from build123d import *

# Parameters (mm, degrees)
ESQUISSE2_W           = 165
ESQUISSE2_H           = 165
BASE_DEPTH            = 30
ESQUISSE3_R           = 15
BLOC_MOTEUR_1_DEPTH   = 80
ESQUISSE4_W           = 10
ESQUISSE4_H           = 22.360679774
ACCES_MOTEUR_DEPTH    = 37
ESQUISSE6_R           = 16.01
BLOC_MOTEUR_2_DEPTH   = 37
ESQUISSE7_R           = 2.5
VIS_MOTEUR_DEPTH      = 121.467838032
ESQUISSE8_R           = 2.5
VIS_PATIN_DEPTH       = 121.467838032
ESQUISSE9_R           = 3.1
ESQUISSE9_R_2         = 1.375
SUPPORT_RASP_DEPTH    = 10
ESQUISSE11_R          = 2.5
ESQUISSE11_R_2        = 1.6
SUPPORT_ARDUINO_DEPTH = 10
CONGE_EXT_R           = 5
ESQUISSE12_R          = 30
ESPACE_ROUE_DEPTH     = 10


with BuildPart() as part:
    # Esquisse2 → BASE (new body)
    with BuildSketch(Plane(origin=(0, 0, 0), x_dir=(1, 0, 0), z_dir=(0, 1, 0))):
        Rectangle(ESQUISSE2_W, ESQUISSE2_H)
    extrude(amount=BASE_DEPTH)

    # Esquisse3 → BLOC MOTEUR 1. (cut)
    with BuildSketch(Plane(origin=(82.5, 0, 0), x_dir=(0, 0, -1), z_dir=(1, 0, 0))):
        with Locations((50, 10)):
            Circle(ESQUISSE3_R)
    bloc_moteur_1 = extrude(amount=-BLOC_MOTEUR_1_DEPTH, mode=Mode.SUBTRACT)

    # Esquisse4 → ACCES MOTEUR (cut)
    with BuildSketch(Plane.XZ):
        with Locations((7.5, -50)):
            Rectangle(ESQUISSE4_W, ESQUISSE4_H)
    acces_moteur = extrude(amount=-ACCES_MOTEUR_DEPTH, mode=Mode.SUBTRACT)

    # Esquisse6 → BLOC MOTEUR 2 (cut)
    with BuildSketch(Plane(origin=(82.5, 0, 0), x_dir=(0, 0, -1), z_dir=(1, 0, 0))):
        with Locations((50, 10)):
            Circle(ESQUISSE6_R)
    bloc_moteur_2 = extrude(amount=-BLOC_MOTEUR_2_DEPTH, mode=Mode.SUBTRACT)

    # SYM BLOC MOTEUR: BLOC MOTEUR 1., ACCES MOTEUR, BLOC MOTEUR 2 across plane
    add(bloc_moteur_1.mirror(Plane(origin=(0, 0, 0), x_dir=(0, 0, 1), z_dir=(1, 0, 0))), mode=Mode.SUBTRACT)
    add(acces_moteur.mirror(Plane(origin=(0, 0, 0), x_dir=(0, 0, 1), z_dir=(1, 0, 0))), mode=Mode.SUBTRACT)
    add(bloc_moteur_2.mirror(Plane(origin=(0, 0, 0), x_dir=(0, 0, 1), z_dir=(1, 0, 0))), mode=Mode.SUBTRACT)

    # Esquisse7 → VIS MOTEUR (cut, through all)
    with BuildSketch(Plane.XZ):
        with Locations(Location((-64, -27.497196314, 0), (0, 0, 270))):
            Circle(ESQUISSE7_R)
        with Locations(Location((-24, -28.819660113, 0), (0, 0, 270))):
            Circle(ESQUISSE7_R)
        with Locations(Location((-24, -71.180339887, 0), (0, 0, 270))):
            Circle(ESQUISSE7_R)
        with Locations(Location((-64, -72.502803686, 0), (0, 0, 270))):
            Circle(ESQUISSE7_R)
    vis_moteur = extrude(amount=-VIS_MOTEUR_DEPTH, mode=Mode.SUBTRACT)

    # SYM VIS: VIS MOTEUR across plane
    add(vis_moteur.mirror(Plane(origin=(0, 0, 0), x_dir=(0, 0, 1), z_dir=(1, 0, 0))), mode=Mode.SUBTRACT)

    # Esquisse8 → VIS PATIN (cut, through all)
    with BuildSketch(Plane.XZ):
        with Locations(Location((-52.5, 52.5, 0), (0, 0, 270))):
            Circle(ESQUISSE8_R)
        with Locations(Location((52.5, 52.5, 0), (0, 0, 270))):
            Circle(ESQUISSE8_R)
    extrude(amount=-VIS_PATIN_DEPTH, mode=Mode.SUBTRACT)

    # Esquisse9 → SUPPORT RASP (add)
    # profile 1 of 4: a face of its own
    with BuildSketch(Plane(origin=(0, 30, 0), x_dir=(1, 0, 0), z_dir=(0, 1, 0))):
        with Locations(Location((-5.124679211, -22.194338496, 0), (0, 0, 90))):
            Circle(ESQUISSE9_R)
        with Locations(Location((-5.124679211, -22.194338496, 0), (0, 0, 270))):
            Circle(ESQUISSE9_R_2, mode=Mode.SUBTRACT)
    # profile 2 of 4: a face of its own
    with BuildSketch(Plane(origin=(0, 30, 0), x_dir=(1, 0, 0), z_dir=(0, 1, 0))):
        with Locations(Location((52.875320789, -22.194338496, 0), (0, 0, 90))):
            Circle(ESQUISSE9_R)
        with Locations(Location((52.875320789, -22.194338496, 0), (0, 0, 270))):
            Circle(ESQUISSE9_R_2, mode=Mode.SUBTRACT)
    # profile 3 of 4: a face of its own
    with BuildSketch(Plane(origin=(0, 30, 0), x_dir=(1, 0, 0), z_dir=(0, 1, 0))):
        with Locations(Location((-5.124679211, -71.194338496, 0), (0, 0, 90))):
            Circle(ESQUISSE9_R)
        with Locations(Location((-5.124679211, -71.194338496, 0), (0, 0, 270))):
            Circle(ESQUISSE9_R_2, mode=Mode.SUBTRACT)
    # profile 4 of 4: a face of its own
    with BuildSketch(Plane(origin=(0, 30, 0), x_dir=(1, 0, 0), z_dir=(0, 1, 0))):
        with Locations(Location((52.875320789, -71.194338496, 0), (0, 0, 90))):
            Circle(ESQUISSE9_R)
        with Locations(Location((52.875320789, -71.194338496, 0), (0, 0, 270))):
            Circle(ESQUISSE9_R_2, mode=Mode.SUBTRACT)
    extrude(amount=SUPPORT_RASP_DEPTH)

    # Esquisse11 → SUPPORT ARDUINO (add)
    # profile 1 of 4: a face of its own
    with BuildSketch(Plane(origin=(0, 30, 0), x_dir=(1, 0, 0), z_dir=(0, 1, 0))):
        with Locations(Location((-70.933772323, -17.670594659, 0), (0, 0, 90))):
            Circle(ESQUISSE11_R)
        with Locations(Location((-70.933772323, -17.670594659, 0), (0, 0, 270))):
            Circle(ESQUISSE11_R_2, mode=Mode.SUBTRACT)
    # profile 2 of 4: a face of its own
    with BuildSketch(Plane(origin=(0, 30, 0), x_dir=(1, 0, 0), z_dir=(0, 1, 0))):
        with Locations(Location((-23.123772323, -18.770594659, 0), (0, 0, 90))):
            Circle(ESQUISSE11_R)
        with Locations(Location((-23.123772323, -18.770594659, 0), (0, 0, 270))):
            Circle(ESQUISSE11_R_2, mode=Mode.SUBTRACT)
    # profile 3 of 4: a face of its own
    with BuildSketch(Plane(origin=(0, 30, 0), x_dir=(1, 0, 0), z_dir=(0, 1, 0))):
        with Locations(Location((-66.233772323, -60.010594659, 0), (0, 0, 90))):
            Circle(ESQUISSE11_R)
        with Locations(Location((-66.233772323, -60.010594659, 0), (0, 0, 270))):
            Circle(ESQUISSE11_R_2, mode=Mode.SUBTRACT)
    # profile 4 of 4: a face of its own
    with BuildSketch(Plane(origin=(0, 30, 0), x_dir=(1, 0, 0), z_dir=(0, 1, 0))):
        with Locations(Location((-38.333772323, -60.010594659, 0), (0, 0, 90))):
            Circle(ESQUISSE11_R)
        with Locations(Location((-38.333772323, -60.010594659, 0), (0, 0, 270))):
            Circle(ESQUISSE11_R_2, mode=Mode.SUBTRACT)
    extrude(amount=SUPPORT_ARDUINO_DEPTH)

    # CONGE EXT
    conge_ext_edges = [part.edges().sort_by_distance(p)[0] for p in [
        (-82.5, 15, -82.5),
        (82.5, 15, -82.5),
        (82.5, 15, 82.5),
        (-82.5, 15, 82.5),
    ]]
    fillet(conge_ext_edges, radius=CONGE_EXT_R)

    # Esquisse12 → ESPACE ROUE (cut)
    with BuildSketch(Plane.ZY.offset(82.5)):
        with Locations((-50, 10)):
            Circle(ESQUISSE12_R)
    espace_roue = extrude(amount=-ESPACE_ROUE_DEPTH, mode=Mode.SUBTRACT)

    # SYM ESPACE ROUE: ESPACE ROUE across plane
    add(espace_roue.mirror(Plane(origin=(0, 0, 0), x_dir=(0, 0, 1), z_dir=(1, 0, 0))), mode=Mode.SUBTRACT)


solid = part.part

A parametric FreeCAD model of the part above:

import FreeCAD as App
import Part
import Sketcher

V = App.Vector


def edges_at(feature, points):
    """Names of the edges that pass closest to the given points."""
    edges = feature.Shape.Edges
    near = lambda p: min(range(len(edges)), key=lambda i: edges[i].distToShape(Part.Vertex(*p))[0])
    return sorted({f"Edge{near(p) + 1}" for p in points})


def add_polygon(sketch, points):
    """Adds a closed chain of lines whose ends are joined by coincident constraints."""
    first, n = sketch.GeometryCount, len(points)
    for a, b in zip(points, points[1:] + points[:1]):
        sketch.addGeometry(Part.LineSegment(App.Vector(*a, 0), App.Vector(*b, 0)), False)
    for i in range(n):
        sketch.addConstraint(Sketcher.Constraint("Coincident", first + i, 2, first + (i + 1) % n, 1))

doc = App.newDocument("Part")
params = doc.addObject("Spreadsheet::Sheet", "Params")
for row, (alias, value) in enumerate([
    ("sketch1_width", "165 mm"),
    ("pad1_length", "30 mm"),
    ("sketch2_diameter", "30 mm"),
    ("pocket1_length", "80 mm"),
    ("sketch3_width", "10 mm"),
    ("pocket2_length", "37 mm"),
    ("sketch4_diameter", "32.02 mm"),
    ("pocket3_length", "37 mm"),
    ("sketch5_diameter", "5 mm"),
    ("sketch6_diameter", "5 mm"),
    ("sketch7_diameter", "6.2 mm"),
    ("sketch7_diameter2", "2.75 mm"),
    ("pad2_length", "10 mm"),
    ("sketch8_diameter", "5 mm"),
    ("sketch8_diameter2", "3.2 mm"),
    ("pad3_length", "10 mm"),
    ("fillet_radius", "5 mm"),
    ("sketch9_diameter", "60 mm"),
    ("pocket6_length", "10 mm"),
], start=1):
    params.set(f"A{row}", alias)
    params.set(f"B{row}", "=" + value)
    params.setAlias(f"B{row}", alias)

body = doc.addObject("PartDesign::Body", "Body")

sketch1 = body.newObject("Sketcher::SketchObject", "Sketch")
sketch1.AttachmentSupport = (doc.getObject("XZ_Plane"), [""])
sketch1.MapMode = "FlatFace"
add_polygon(sketch1, [(-82, -82), (-82, 82), (82, 82), (82, -82)])
sketch1.addConstraint([
    Sketcher.Constraint("Vertical", 0),
    Sketcher.Constraint("Horizontal", 1),
    Sketcher.Constraint("Vertical", 2),
    Sketcher.Constraint("Horizontal", 3),
    Sketcher.Constraint("Symmetric", 0, 2, 2, 2, -1, 1),
    Sketcher.Constraint("Equal", 3, 0),
    Sketcher.Constraint("DistanceX", 1, 1, 1, 2, 165.0),
])
sketch1.setExpression("Constraints[10]", "Params.sketch1_width")
pad1 = body.newObject("PartDesign::Pad", "Pad")
pad1.Profile = sketch1
pad1.setExpression("Length", "Params.pad1_length")
pad1.Reversed = True

sketch2 = body.newObject("Sketcher::SketchObject", "Sketch001")
sketch2.AttachmentSupport = (doc.getObject("YZ_Plane"), [""])
sketch2.MapMode = "FlatFace"
sketch2.AttachmentOffset = App.Placement(V(0, 0, 82.5), App.Rotation())
sketch2.addGeometry(Part.Circle(V(10, -50, 0), V(0, 0, 1), 15), False)
sketch2.addConstraint([
    Sketcher.Constraint("Diameter", 0, 30.0),
    Sketcher.Constraint("DistanceX", -1, 1, 0, 3, 10.0),
    Sketcher.Constraint("DistanceY", 0, 3, -1, 1, 50.0),
])
sketch2.setExpression("Constraints[0]", "Params.sketch2_diameter")
pocket1 = body.newObject("PartDesign::Pocket", "Pocket")
pocket1.Profile = sketch2
pocket1.setExpression("Length", "Params.pocket1_length")

sketch3 = body.newObject("Sketcher::SketchObject", "Sketch002")
sketch3.AttachmentSupport = (doc.getObject("XZ_Plane"), [""])
sketch3.MapMode = "FlatFace"
add_polygon(sketch3, [(2, -39), (2, -61), (12, -61), (12, -39)])
sketch3.addConstraint([
    Sketcher.Constraint("Vertical", 0),
    Sketcher.Constraint("Horizontal", 1),
    Sketcher.Constraint("Vertical", 2),
    Sketcher.Constraint("Horizontal", 3),
    Sketcher.Constraint("DistanceX", 1, 1, 1, 2, 10.0),
    Sketcher.Constraint("DistanceX", -1, 1, 0, 2, 2.5),
    Sketcher.Constraint("DistanceY", 0, 2, 0, 1, 22.36068),
    Sketcher.Constraint("DistanceY", 0, 2, -1, 1, 61.18034),
])
sketch3.setExpression("Constraints[8]", "Params.sketch3_width")
pocket2 = body.newObject("PartDesign::Pocket", "Pocket001")
pocket2.Profile = sketch3
pocket2.setExpression("Length", "Params.pocket2_length")

sketch4 = body.newObject("Sketcher::SketchObject", "Sketch003")
sketch4.AttachmentSupport = (doc.getObject("YZ_Plane"), [""])
sketch4.MapMode = "FlatFace"
sketch4.AttachmentOffset = App.Placement(V(0, 0, 82.5), App.Rotation())
sketch4.addGeometry(Part.Circle(V(10, -50, 0), V(0, 0, 1), 16), False)
sketch4.addConstraint([
    Sketcher.Constraint("Diameter", 0, 32.02),
    Sketcher.Constraint("DistanceX", -1, 1, 0, 3, 10.0),
    Sketcher.Constraint("DistanceY", 0, 3, -1, 1, 50.0),
])
sketch4.setExpression("Constraints[0]", "Params.sketch4_diameter")
pocket3 = body.newObject("PartDesign::Pocket", "Pocket002")
pocket3.Profile = sketch4
pocket3.setExpression("Length", "Params.pocket3_length")
doc.recompute()

mirrored = body.newObject("PartDesign::Mirrored", "Mirrored")
mirrored.Originals = [pocket1, pocket2, pocket3]
mirrored.MirrorPlane = (doc.getObject("YZ_Plane"), [""])
body.Tip = mirrored

sketch5 = body.newObject("Sketcher::SketchObject", "Sketch004")
sketch5.AttachmentSupport = (doc.getObject("XZ_Plane"), [""])
sketch5.MapMode = "FlatFace"
sketch5.addGeometry([
    Part.Circle(V(-64, -27.5, 0), V(0, 0, 1), 2.5),
    Part.Circle(V(-24, -28.8, 0), V(0, 0, 1), 2.5),
    Part.Circle(V(-24, -71.2, 0), V(0, 0, 1), 2.5),
    Part.Circle(V(-64, -72.5, 0), V(0, 0, 1), 2.5),
], False)
sketch5.addConstraint([
    Sketcher.Constraint("Equal", 0, 1),
    Sketcher.Constraint("Equal", 1, 2),
    Sketcher.Constraint("Equal", 2, 3),
    Sketcher.Constraint("Vertical", 1, 3, 2, 3),
    Sketcher.Constraint("Vertical", 0, 3, 3, 3),
    Sketcher.Constraint("Diameter", 0, 5.0),
    Sketcher.Constraint("DistanceX", 0, 3, -1, 1, 64.0),
    Sketcher.Constraint("DistanceX", 1, 3, -1, 1, 24.0),
    Sketcher.Constraint("DistanceY", 1, 3, -1, 1, 28.81966),
    Sketcher.Constraint("DistanceY", 2, 3, -1, 1, 71.18034),
    Sketcher.Constraint("DistanceY", 0, 3, -1, 1, 27.497196),
    Sketcher.Constraint("DistanceY", 3, 3, -1, 1, 72.502804),
])
sketch5.setExpression("Constraints[5]", "Params.sketch5_diameter")
pocket4 = body.newObject("PartDesign::Pocket", "Pocket003")
pocket4.Profile = sketch5
pocket4.Type = "ThroughAll"
doc.recompute()

mirrored2 = body.newObject("PartDesign::Mirrored", "Mirrored001")
mirrored2.Originals = [pocket4]
mirrored2.MirrorPlane = (doc.getObject("YZ_Plane"), [""])
body.Tip = mirrored2

sketch6 = body.newObject("Sketcher::SketchObject", "Sketch005")
sketch6.AttachmentSupport = (doc.getObject("XZ_Plane"), [""])
sketch6.MapMode = "FlatFace"
sketch6.addGeometry([
    Part.Circle(V(-52.5, 52.5, 0), V(0, 0, 1), 2.5),
    Part.Circle(V(52.5, 52.5, 0), V(0, 0, 1), 2.5),
], False)
sketch6.addConstraint([
    Sketcher.Constraint("Equal", 0, 1),
    Sketcher.Constraint("Symmetric", 0, 3, 1, 3, -2),
    Sketcher.Constraint("Diameter", 0, 5.0),
    Sketcher.Constraint("DistanceX", 0, 3, 1, 3, 105.0),
    Sketcher.Constraint("DistanceY", -1, 1, 0, 3, 52.5),
])
sketch6.setExpression("Constraints[2]", "Params.sketch6_diameter")
pocket5 = body.newObject("PartDesign::Pocket", "Pocket004")
pocket5.Profile = sketch6
pocket5.Type = "ThroughAll"

sketch7 = body.newObject("Sketcher::SketchObject", "Sketch006")
sketch7.AttachmentSupport = (doc.getObject("XZ_Plane"), [""])
sketch7.MapMode = "FlatFace"
sketch7.AttachmentOffset = App.Placement(V(0, 0, -30), App.Rotation())
sketch7.addGeometry([
    Part.Circle(V(-5.1, 22.2, 0), V(0, 0, 1), 3.1),
    Part.Circle(V(-5.1, 22.2, 0), V(0, 0, 1), 1.4),
    Part.Circle(V(52.9, 22.2, 0), V(0, 0, 1), 3.1),
    Part.Circle(V(52.9, 22.2, 0), V(0, 0, 1), 1.4),
    Part.Circle(V(-5.1, 71.2, 0), V(0, 0, 1), 3.1),
    Part.Circle(V(-5.1, 71.2, 0), V(0, 0, 1), 1.4),
    Part.Circle(V(52.9, 71.2, 0), V(0, 0, 1), 3.1),
    Part.Circle(V(52.9, 71.2, 0), V(0, 0, 1), 1.4),
], False)
sketch7.addConstraint([
    Sketcher.Constraint("Coincident", 1, 3, 0, 3),
    Sketcher.Constraint("Coincident", 3, 3, 2, 3),
    Sketcher.Constraint("Coincident", 5, 3, 4, 3),
    Sketcher.Constraint("Coincident", 7, 3, 6, 3),
    Sketcher.Constraint("Equal", 0, 2),
    Sketcher.Constraint("Equal", 1, 3),
    Sketcher.Constraint("Equal", 2, 4),
    Sketcher.Constraint("Equal", 3, 5),
    Sketcher.Constraint("Equal", 4, 6),
    Sketcher.Constraint("Equal", 5, 7),
    Sketcher.Constraint("Horizontal", 1, 3, 2, 3),
    Sketcher.Constraint("Horizontal", 5, 3, 6, 3),
    Sketcher.Constraint("Vertical", 1, 3, 4, 3),
    Sketcher.Constraint("Vertical", 3, 3, 6, 3),
    Sketcher.Constraint("Diameter", 0, 6.2),
    Sketcher.Constraint("Diameter", 1, 2.75),
    Sketcher.Constraint("DistanceX", 0, 3, 2, 3, 58.0),
    Sketcher.Constraint("DistanceY", 0, 3, 4, 3, 49.0),
    Sketcher.Constraint("DistanceX", 0, 3, -1, 1, 5.124679),
    Sketcher.Constraint("DistanceY", -1, 1, 0, 3, 22.194338),
])
sketch7.setExpression("Constraints[14]", "Params.sketch7_diameter")
sketch7.setExpression("Constraints[15]", "Params.sketch7_diameter2")
pad2 = body.newObject("PartDesign::Pad", "Pad001")
pad2.Profile = sketch7
pad2.setExpression("Length", "Params.pad2_length")
pad2.Reversed = True

sketch8 = body.newObject("Sketcher::SketchObject", "Sketch007")
sketch8.AttachmentSupport = (doc.getObject("XZ_Plane"), [""])
sketch8.MapMode = "FlatFace"
sketch8.AttachmentOffset = App.Placement(V(0, 0, -30), App.Rotation())
sketch8.addGeometry([
    Part.Circle(V(-70.9, 17.7, 0), V(0, 0, 1), 2.5),
    Part.Circle(V(-70.9, 17.7, 0), V(0, 0, 1), 1.6),
    Part.Circle(V(-23.1, 18.8, 0), V(0, 0, 1), 2.5),
    Part.Circle(V(-23.1, 18.8, 0), V(0, 0, 1), 1.6),
    Part.Circle(V(-66.2, 60, 0), V(0, 0, 1), 2.5),
    Part.Circle(V(-66.2, 60, 0), V(0, 0, 1), 1.6),
    Part.Circle(V(-38.3, 60, 0), V(0, 0, 1), 2.5),
    Part.Circle(V(-38.3, 60, 0), V(0, 0, 1), 1.6),
], False)
sketch8.addConstraint([
    Sketcher.Constraint("Coincident", 1, 3, 0, 3),
    Sketcher.Constraint("Coincident", 3, 3, 2, 3),
    Sketcher.Constraint("Coincident", 5, 3, 4, 3),
    Sketcher.Constraint("Coincident", 7, 3, 6, 3),
    Sketcher.Constraint("Equal", 0, 2),
    Sketcher.Constraint("Equal", 1, 3),
    Sketcher.Constraint("Equal", 2, 4),
    Sketcher.Constraint("Equal", 3, 5),
    Sketcher.Constraint("Equal", 4, 6),
    Sketcher.Constraint("Equal", 5, 7),
    Sketcher.Constraint("Horizontal", 5, 3, 6, 3),
    Sketcher.Constraint("Diameter", 0, 5.0),
    Sketcher.Constraint("Diameter", 1, 3.2),
    Sketcher.Constraint("DistanceY", 0, 3, 2, 3, 1.1),
    Sketcher.Constraint("DistanceX", 0, 3, 4, 3, 4.7),
    Sketcher.Constraint("DistanceX", 4, 3, 6, 3, 27.9),
    Sketcher.Constraint("DistanceX", 0, 3, 2, 3, 47.81),
    Sketcher.Constraint("DistanceY", 0, 3, 4, 3, 42.34),
    Sketcher.Constraint("DistanceX", 0, 3, -1, 1, 70.933772),
    Sketcher.Constraint("DistanceY", -1, 1, 0, 3, 17.670595),
])
sketch8.setExpression("Constraints[11]", "Params.sketch8_diameter")
sketch8.setExpression("Constraints[12]", "Params.sketch8_diameter2")
pad3 = body.newObject("PartDesign::Pad", "Pad002")
pad3.Profile = sketch8
pad3.setExpression("Length", "Params.pad3_length")
pad3.Reversed = True
doc.recompute()

fillet = body.newObject("PartDesign::Fillet", "Fillet")
fillet.Base = (pad3, edges_at(pad3, [
    (-82.5, 15, -82.5),
    (82.5, 15, -82.5),
    (82.5, 15, 82.5),
    (-82.5, 15, 82.5),
]))
fillet.setExpression("Radius", "Params.fillet_radius")

sketch9 = body.newObject("Sketcher::SketchObject", "Sketch008")
sketch9.AttachmentSupport = (doc.getObject("YZ_Plane"), [""])
sketch9.MapMode = "FlatFace"
sketch9.AttachmentOffset = App.Placement(V(0, 0, -82.5), App.Rotation())
sketch9.addGeometry(Part.Circle(V(10, -50, 0), V(0, 0, 1), 30), False)
sketch9.addConstraint([
    Sketcher.Constraint("Diameter", 0, 60.0),
    Sketcher.Constraint("DistanceX", -1, 1, 0, 3, 10.0),
    Sketcher.Constraint("DistanceY", 0, 3, -1, 1, 50.0),
])
sketch9.setExpression("Constraints[0]", "Params.sketch9_diameter")
pocket6 = body.newObject("PartDesign::Pocket", "Pocket005")
pocket6.Profile = sketch9
pocket6.setExpression("Length", "Params.pocket6_length")
pocket6.Reversed = True
doc.recompute()

mirrored3 = body.newObject("PartDesign::Mirrored", "Mirrored002")
mirrored3.Originals = [pocket6]
mirrored3.MirrorPlane = (doc.getObject("YZ_Plane"), [""])
body.Tip = mirrored3

doc.recompute()
